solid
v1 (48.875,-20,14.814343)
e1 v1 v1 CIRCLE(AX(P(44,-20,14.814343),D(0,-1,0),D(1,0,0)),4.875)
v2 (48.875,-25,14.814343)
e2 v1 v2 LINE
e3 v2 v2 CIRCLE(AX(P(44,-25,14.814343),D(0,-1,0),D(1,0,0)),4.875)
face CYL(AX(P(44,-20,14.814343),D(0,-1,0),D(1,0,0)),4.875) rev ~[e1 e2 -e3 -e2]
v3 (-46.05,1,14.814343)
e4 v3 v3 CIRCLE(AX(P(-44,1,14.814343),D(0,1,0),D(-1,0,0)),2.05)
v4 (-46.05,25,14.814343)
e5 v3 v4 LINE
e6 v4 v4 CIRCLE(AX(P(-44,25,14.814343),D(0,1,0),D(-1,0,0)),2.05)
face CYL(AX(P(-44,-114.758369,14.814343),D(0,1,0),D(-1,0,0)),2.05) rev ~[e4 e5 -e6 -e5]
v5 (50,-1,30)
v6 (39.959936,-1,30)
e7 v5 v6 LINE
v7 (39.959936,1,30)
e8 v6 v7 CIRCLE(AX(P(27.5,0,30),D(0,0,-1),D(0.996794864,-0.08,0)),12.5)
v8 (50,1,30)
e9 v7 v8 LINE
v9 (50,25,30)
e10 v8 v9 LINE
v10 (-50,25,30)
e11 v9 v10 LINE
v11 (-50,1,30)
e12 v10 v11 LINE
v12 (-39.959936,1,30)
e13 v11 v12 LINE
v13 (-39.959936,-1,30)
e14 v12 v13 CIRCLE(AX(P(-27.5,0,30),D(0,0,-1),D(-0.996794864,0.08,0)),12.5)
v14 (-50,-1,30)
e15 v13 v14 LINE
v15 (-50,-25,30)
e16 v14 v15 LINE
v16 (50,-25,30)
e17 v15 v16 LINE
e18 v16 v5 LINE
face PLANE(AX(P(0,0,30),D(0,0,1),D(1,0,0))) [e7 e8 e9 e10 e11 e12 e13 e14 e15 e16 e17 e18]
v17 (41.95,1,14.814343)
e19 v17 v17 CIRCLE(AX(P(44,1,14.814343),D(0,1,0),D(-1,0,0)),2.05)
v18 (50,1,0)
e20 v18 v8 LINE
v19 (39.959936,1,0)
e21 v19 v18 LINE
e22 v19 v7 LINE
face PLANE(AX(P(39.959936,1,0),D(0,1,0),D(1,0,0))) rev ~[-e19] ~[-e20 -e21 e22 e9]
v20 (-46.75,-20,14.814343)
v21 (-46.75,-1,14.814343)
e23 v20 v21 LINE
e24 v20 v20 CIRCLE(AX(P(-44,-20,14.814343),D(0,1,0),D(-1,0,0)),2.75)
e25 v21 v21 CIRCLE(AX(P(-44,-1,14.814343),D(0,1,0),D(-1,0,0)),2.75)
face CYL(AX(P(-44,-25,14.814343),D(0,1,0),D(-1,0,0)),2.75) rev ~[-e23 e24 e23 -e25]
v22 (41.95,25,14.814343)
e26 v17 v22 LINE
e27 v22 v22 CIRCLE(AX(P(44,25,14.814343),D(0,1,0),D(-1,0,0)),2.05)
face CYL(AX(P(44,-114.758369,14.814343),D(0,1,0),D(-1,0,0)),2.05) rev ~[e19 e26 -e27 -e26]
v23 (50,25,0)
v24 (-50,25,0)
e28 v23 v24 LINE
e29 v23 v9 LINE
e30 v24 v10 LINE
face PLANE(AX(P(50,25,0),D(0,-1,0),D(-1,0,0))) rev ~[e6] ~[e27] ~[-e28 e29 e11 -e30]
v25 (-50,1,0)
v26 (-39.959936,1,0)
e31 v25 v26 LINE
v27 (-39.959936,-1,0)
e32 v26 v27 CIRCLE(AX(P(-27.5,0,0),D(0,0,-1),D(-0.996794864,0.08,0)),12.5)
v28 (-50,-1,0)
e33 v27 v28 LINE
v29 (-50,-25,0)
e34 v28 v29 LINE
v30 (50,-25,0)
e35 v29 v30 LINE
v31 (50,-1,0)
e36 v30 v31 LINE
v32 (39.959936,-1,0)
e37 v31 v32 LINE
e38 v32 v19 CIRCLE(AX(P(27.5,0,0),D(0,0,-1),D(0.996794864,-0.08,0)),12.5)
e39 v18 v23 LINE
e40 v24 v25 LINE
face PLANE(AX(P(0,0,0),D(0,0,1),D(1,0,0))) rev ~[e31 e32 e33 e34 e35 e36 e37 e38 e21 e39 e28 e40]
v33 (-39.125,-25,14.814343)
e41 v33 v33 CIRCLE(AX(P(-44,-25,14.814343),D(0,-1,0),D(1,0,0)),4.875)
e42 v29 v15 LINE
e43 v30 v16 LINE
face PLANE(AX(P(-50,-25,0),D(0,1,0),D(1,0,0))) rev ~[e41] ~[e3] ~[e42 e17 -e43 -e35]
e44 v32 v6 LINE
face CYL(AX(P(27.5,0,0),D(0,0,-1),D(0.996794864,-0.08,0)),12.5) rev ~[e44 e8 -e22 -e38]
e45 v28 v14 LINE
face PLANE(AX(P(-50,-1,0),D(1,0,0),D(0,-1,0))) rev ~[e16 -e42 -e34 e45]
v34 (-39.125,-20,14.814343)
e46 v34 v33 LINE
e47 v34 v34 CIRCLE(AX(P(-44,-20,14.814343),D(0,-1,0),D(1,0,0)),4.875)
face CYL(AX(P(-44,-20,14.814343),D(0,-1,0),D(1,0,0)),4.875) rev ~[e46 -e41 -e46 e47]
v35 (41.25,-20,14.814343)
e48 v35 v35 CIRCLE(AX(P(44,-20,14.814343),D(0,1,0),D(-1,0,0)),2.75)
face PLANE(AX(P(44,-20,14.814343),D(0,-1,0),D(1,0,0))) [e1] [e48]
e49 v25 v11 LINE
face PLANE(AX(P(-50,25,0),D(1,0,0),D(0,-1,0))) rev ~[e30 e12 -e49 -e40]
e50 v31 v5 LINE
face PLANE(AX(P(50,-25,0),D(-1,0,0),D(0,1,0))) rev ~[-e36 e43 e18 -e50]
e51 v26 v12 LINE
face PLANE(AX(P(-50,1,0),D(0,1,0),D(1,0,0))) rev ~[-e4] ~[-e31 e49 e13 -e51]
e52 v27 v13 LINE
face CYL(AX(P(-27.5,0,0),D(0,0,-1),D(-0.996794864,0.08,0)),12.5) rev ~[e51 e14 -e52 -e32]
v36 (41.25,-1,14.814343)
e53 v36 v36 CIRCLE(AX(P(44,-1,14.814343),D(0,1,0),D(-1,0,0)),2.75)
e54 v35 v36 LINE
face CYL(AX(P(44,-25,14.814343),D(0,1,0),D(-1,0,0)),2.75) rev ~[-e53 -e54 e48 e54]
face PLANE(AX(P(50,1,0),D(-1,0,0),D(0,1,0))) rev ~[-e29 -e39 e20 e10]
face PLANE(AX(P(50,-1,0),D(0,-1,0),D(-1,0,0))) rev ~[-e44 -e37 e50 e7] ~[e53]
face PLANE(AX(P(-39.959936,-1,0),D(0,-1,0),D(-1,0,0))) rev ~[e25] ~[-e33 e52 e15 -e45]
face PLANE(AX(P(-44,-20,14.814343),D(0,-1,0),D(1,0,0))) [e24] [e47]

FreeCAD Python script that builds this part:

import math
import FreeCAD as App
import Part
import Sketcher

V = App.Vector
Q = App.Units.Quantity

doc = App.newDocument("Part")
params = doc.addObject("Spreadsheet::Sheet", "Params")
for row, (alias, value) in enumerate([
    ("sketch1_radius", "12.5 mm"),
    ("sketch1_width", "100 mm"),
    ("sketch1_height", "24 mm"),
    ("pad1_length", "30 mm"),
    ("sketch2_diameter", "5.5 mm"),
    ("hole_diameter", "5.5 mm"),
    ("hole_depth", "25 mm"),
    ("hole_cbore_diameter", "9.75 mm"),
    ("hole_cbore_depth", "5 mm"),
    ("sketch3_diameter", "4.1 mm"),
    ("hole2_diameter", "4.1 mm"),
], start=1):
    params.set(f"A{row}", alias)
    params.set(f"B{row}", "=" + value)
    params.setAlias(f"B{row}", alias)

body = doc.addObject("PartDesign::Body", "Body")

sketch1 = body.newObject("Sketcher::SketchObject", "Sketch")
sketch1.AttachmentSupport = (doc.getObject("XY_Plane"), [""])
sketch1.MapMode = "FlatFace"
sketch1.addGeometry([
    Part.LineSegment(V(50, 1, 0), V(50, 25, 0)),
    Part.LineSegment(V(50, 25, 0), V(-50, 25, 0)),
    Part.LineSegment(V(-50, 25, 0), V(-50, 1, 0)),
    Part.LineSegment(V(-50, 1, 0), V(-40, 1, 0)),
    Part.ArcOfCircle(Part.Circle(V(-27.5, 0, 0), V(0, 0, 1), 12.5), math.radians(-175), math.radians(175)),
    Part.LineSegment(V(-40, -1, 0), V(-50, -1, 0)),
    Part.LineSegment(V(-50, -1, 0), V(-50, -25, 0)),
    Part.LineSegment(V(-50, -25, 0), V(50, -25, 0)),
    Part.LineSegment(V(50, -25, 0), V(50, -1, 0)),
    Part.LineSegment(V(50, -1, 0), V(40, -1, 0)),
    Part.ArcOfCircle(Part.Circle(V(27.5, 0, 0), V(0, 0, 1), 12.5), math.radians(5), math.radians(355)),
    Part.LineSegment(V(40, 1, 0), V(50, 1, 0)),
], False)
sketch1.addConstraint([
    Sketcher.Constraint("Coincident", 0, 2, 1, 1),
    Sketcher.Constraint("Coincident", 1, 2, 2, 1),
    Sketcher.Constraint("Coincident", 2, 2, 3, 1),
    Sketcher.Constraint("Coincident", 3, 2, 4, 2),
    Sketcher.Constraint("Coincident", 4, 1, 5, 1),
    Sketcher.Constraint("Coincident", 5, 2, 6, 1),
    Sketcher.Constraint("Coincident", 6, 2, 7, 1),
    Sketcher.Constraint("Coincident", 7, 2, 8, 1),
    Sketcher.Constraint("Coincident", 8, 2, 9, 1),
    Sketcher.Constraint("Coincident", 9, 2, 10, 2),
    Sketcher.Constraint("Coincident", 10, 1, 11, 1),
    Sketcher.Constraint("Coincident", 11, 2, 0, 1),
    Sketcher.Constraint("Vertical", 0),
    Sketcher.Constraint("Horizontal", 1),
    Sketcher.Constraint("Vertical", 2),
    Sketcher.Constraint("Horizontal", 3),
    Sketcher.Constraint("Horizontal", 5),
    Sketcher.Constraint("Vertical", 6),
    Sketcher.Constraint("Horizontal", 7),
    Sketcher.Constraint("Vertical", 8),
    Sketcher.Constraint("Horizontal", 9),
    Sketcher.Constraint("Horizontal", 11),
    Sketcher.Constraint("Equal", 4, 10),
    Sketcher.Constraint("Symmetric", 4, 3, 10, 3, -1, 1),
    Sketcher.Constraint("Symmetric", 0, 2, 6, 2, -1, 1),
    Sketcher.Constraint("Symmetric", 2, 2, 8, 2, -1, 1),
    Sketcher.Constraint("Symmetric", 5, 2, 8, 2, -2),
    Sketcher.Constraint("Symmetric", 3, 2, 10, 1, -2),
    Sketcher.Constraint("Radius", 4, Q("12.5 mm")),
    Sketcher.Constraint("DistanceX", 1, 2, 1, 1, Q("100 mm")),
    Sketcher.Constraint("DistanceY", 0, 1, 0, 2, Q("24 mm")),
    Sketcher.Constraint("DistanceY", -1, 1, 0, 2, Q("25 mm")),
    Sketcher.Constraint("DistanceX", 4, 3, 10, 3, Q("55 mm")),
])
sketch1.setExpression("Constraints[28]", "Params.sketch1_radius")
sketch1.setExpression("Constraints[29]", "Params.sketch1_width")
sketch1.setExpression("Constraints[30]", "Params.sketch1_height")
pad1 = body.newObject("PartDesign::Pad", "Pad")
pad1.Profile = sketch1
pad1.setExpression("Length", "Params.pad1_length")

sketch2 = body.newObject("Sketcher::SketchObject", "Sketch001")
sketch2.AttachmentSupport = (doc.getObject("XZ_Plane"), [""])
sketch2.MapMode = "FlatFace"
sketch2.AttachmentOffset = App.Placement(V(0, 0, 25), App.Rotation())
sketch2.addGeometry([
    Part.Circle(V(-44, 14.8, 0), V(0, 0, 1), 2.8),
    Part.Circle(V(44, 14.8, 0), V(0, 0, 1), 2.8),
], False)
sketch2.addConstraint([
    Sketcher.Constraint("Equal", 0, 1),
    Sketcher.Constraint("Symmetric", 0, 3, 1, 3, -2),
    Sketcher.Constraint("Diameter", 0, Q("5.5 mm")),
    Sketcher.Constraint("DistanceX", 0, 3, -1, 1, Q("44 mm")),
    Sketcher.Constraint("DistanceY", -1, 1, 0, 3, Q("14.814343 mm")),
])
sketch2.setExpression("Constraints[2]", "Params.sketch2_diameter")
doc.recompute()
hole = body.newObject("PartDesign::Hole", "Hole")
hole.Profile = sketch2
hole.ThreadType = "None"
hole.setExpression("Diameter", "Params.hole_diameter")
hole.DepthType = "Dimension"
hole.setExpression("Depth", "Params.hole_depth")
hole.DrillPoint = "Angled"
hole.DrillPointAngle = 118
hole.HoleCutType = "Counterbore"
hole.setExpression("HoleCutDiameter", "Params.hole_cbore_diameter")
hole.setExpression("HoleCutDepth", "Params.hole_cbore_depth")

sketch3 = body.newObject("Sketcher::SketchObject", "Sketch002")
sketch3.AttachmentSupport = (doc.getObject("XZ_Plane"), [""])
sketch3.MapMode = "FlatFace"
sketch3.AttachmentOffset = App.Placement(V(0, 0, -1), App.Rotation())
sketch3.addGeometry([
    Part.Circle(V(-44, 14.8, 0), V(0, 0, 1), 2),
    Part.Circle(V(44, 14.8, 0), V(0, 0, 1), 2),
], False)
sketch3.addConstraint([
    Sketcher.Constraint("Equal", 0, 1),
    Sketcher.Constraint("Symmetric", 0, 3, 1, 3, -2),
    Sketcher.Constraint("Diameter", 0, Q("4.1 mm")),
    Sketcher.Constraint("DistanceX", 0, 3, -1, 1, Q("44 mm")),
    Sketcher.Constraint("DistanceY", -1, 1, 0, 3, Q("14.814343 mm")),
])
sketch3.setExpression("Constraints[2]", "Params.sketch3_diameter")
doc.recompute()
hole2 = body.newObject("PartDesign::Hole", "Hole001")
hole2.Profile = sketch3
hole2.ThreadType = "None"
hole2.setExpression("Diameter", "Params.hole2_diameter")
hole2.DepthType = "ThroughAll"

doc.recompute()
